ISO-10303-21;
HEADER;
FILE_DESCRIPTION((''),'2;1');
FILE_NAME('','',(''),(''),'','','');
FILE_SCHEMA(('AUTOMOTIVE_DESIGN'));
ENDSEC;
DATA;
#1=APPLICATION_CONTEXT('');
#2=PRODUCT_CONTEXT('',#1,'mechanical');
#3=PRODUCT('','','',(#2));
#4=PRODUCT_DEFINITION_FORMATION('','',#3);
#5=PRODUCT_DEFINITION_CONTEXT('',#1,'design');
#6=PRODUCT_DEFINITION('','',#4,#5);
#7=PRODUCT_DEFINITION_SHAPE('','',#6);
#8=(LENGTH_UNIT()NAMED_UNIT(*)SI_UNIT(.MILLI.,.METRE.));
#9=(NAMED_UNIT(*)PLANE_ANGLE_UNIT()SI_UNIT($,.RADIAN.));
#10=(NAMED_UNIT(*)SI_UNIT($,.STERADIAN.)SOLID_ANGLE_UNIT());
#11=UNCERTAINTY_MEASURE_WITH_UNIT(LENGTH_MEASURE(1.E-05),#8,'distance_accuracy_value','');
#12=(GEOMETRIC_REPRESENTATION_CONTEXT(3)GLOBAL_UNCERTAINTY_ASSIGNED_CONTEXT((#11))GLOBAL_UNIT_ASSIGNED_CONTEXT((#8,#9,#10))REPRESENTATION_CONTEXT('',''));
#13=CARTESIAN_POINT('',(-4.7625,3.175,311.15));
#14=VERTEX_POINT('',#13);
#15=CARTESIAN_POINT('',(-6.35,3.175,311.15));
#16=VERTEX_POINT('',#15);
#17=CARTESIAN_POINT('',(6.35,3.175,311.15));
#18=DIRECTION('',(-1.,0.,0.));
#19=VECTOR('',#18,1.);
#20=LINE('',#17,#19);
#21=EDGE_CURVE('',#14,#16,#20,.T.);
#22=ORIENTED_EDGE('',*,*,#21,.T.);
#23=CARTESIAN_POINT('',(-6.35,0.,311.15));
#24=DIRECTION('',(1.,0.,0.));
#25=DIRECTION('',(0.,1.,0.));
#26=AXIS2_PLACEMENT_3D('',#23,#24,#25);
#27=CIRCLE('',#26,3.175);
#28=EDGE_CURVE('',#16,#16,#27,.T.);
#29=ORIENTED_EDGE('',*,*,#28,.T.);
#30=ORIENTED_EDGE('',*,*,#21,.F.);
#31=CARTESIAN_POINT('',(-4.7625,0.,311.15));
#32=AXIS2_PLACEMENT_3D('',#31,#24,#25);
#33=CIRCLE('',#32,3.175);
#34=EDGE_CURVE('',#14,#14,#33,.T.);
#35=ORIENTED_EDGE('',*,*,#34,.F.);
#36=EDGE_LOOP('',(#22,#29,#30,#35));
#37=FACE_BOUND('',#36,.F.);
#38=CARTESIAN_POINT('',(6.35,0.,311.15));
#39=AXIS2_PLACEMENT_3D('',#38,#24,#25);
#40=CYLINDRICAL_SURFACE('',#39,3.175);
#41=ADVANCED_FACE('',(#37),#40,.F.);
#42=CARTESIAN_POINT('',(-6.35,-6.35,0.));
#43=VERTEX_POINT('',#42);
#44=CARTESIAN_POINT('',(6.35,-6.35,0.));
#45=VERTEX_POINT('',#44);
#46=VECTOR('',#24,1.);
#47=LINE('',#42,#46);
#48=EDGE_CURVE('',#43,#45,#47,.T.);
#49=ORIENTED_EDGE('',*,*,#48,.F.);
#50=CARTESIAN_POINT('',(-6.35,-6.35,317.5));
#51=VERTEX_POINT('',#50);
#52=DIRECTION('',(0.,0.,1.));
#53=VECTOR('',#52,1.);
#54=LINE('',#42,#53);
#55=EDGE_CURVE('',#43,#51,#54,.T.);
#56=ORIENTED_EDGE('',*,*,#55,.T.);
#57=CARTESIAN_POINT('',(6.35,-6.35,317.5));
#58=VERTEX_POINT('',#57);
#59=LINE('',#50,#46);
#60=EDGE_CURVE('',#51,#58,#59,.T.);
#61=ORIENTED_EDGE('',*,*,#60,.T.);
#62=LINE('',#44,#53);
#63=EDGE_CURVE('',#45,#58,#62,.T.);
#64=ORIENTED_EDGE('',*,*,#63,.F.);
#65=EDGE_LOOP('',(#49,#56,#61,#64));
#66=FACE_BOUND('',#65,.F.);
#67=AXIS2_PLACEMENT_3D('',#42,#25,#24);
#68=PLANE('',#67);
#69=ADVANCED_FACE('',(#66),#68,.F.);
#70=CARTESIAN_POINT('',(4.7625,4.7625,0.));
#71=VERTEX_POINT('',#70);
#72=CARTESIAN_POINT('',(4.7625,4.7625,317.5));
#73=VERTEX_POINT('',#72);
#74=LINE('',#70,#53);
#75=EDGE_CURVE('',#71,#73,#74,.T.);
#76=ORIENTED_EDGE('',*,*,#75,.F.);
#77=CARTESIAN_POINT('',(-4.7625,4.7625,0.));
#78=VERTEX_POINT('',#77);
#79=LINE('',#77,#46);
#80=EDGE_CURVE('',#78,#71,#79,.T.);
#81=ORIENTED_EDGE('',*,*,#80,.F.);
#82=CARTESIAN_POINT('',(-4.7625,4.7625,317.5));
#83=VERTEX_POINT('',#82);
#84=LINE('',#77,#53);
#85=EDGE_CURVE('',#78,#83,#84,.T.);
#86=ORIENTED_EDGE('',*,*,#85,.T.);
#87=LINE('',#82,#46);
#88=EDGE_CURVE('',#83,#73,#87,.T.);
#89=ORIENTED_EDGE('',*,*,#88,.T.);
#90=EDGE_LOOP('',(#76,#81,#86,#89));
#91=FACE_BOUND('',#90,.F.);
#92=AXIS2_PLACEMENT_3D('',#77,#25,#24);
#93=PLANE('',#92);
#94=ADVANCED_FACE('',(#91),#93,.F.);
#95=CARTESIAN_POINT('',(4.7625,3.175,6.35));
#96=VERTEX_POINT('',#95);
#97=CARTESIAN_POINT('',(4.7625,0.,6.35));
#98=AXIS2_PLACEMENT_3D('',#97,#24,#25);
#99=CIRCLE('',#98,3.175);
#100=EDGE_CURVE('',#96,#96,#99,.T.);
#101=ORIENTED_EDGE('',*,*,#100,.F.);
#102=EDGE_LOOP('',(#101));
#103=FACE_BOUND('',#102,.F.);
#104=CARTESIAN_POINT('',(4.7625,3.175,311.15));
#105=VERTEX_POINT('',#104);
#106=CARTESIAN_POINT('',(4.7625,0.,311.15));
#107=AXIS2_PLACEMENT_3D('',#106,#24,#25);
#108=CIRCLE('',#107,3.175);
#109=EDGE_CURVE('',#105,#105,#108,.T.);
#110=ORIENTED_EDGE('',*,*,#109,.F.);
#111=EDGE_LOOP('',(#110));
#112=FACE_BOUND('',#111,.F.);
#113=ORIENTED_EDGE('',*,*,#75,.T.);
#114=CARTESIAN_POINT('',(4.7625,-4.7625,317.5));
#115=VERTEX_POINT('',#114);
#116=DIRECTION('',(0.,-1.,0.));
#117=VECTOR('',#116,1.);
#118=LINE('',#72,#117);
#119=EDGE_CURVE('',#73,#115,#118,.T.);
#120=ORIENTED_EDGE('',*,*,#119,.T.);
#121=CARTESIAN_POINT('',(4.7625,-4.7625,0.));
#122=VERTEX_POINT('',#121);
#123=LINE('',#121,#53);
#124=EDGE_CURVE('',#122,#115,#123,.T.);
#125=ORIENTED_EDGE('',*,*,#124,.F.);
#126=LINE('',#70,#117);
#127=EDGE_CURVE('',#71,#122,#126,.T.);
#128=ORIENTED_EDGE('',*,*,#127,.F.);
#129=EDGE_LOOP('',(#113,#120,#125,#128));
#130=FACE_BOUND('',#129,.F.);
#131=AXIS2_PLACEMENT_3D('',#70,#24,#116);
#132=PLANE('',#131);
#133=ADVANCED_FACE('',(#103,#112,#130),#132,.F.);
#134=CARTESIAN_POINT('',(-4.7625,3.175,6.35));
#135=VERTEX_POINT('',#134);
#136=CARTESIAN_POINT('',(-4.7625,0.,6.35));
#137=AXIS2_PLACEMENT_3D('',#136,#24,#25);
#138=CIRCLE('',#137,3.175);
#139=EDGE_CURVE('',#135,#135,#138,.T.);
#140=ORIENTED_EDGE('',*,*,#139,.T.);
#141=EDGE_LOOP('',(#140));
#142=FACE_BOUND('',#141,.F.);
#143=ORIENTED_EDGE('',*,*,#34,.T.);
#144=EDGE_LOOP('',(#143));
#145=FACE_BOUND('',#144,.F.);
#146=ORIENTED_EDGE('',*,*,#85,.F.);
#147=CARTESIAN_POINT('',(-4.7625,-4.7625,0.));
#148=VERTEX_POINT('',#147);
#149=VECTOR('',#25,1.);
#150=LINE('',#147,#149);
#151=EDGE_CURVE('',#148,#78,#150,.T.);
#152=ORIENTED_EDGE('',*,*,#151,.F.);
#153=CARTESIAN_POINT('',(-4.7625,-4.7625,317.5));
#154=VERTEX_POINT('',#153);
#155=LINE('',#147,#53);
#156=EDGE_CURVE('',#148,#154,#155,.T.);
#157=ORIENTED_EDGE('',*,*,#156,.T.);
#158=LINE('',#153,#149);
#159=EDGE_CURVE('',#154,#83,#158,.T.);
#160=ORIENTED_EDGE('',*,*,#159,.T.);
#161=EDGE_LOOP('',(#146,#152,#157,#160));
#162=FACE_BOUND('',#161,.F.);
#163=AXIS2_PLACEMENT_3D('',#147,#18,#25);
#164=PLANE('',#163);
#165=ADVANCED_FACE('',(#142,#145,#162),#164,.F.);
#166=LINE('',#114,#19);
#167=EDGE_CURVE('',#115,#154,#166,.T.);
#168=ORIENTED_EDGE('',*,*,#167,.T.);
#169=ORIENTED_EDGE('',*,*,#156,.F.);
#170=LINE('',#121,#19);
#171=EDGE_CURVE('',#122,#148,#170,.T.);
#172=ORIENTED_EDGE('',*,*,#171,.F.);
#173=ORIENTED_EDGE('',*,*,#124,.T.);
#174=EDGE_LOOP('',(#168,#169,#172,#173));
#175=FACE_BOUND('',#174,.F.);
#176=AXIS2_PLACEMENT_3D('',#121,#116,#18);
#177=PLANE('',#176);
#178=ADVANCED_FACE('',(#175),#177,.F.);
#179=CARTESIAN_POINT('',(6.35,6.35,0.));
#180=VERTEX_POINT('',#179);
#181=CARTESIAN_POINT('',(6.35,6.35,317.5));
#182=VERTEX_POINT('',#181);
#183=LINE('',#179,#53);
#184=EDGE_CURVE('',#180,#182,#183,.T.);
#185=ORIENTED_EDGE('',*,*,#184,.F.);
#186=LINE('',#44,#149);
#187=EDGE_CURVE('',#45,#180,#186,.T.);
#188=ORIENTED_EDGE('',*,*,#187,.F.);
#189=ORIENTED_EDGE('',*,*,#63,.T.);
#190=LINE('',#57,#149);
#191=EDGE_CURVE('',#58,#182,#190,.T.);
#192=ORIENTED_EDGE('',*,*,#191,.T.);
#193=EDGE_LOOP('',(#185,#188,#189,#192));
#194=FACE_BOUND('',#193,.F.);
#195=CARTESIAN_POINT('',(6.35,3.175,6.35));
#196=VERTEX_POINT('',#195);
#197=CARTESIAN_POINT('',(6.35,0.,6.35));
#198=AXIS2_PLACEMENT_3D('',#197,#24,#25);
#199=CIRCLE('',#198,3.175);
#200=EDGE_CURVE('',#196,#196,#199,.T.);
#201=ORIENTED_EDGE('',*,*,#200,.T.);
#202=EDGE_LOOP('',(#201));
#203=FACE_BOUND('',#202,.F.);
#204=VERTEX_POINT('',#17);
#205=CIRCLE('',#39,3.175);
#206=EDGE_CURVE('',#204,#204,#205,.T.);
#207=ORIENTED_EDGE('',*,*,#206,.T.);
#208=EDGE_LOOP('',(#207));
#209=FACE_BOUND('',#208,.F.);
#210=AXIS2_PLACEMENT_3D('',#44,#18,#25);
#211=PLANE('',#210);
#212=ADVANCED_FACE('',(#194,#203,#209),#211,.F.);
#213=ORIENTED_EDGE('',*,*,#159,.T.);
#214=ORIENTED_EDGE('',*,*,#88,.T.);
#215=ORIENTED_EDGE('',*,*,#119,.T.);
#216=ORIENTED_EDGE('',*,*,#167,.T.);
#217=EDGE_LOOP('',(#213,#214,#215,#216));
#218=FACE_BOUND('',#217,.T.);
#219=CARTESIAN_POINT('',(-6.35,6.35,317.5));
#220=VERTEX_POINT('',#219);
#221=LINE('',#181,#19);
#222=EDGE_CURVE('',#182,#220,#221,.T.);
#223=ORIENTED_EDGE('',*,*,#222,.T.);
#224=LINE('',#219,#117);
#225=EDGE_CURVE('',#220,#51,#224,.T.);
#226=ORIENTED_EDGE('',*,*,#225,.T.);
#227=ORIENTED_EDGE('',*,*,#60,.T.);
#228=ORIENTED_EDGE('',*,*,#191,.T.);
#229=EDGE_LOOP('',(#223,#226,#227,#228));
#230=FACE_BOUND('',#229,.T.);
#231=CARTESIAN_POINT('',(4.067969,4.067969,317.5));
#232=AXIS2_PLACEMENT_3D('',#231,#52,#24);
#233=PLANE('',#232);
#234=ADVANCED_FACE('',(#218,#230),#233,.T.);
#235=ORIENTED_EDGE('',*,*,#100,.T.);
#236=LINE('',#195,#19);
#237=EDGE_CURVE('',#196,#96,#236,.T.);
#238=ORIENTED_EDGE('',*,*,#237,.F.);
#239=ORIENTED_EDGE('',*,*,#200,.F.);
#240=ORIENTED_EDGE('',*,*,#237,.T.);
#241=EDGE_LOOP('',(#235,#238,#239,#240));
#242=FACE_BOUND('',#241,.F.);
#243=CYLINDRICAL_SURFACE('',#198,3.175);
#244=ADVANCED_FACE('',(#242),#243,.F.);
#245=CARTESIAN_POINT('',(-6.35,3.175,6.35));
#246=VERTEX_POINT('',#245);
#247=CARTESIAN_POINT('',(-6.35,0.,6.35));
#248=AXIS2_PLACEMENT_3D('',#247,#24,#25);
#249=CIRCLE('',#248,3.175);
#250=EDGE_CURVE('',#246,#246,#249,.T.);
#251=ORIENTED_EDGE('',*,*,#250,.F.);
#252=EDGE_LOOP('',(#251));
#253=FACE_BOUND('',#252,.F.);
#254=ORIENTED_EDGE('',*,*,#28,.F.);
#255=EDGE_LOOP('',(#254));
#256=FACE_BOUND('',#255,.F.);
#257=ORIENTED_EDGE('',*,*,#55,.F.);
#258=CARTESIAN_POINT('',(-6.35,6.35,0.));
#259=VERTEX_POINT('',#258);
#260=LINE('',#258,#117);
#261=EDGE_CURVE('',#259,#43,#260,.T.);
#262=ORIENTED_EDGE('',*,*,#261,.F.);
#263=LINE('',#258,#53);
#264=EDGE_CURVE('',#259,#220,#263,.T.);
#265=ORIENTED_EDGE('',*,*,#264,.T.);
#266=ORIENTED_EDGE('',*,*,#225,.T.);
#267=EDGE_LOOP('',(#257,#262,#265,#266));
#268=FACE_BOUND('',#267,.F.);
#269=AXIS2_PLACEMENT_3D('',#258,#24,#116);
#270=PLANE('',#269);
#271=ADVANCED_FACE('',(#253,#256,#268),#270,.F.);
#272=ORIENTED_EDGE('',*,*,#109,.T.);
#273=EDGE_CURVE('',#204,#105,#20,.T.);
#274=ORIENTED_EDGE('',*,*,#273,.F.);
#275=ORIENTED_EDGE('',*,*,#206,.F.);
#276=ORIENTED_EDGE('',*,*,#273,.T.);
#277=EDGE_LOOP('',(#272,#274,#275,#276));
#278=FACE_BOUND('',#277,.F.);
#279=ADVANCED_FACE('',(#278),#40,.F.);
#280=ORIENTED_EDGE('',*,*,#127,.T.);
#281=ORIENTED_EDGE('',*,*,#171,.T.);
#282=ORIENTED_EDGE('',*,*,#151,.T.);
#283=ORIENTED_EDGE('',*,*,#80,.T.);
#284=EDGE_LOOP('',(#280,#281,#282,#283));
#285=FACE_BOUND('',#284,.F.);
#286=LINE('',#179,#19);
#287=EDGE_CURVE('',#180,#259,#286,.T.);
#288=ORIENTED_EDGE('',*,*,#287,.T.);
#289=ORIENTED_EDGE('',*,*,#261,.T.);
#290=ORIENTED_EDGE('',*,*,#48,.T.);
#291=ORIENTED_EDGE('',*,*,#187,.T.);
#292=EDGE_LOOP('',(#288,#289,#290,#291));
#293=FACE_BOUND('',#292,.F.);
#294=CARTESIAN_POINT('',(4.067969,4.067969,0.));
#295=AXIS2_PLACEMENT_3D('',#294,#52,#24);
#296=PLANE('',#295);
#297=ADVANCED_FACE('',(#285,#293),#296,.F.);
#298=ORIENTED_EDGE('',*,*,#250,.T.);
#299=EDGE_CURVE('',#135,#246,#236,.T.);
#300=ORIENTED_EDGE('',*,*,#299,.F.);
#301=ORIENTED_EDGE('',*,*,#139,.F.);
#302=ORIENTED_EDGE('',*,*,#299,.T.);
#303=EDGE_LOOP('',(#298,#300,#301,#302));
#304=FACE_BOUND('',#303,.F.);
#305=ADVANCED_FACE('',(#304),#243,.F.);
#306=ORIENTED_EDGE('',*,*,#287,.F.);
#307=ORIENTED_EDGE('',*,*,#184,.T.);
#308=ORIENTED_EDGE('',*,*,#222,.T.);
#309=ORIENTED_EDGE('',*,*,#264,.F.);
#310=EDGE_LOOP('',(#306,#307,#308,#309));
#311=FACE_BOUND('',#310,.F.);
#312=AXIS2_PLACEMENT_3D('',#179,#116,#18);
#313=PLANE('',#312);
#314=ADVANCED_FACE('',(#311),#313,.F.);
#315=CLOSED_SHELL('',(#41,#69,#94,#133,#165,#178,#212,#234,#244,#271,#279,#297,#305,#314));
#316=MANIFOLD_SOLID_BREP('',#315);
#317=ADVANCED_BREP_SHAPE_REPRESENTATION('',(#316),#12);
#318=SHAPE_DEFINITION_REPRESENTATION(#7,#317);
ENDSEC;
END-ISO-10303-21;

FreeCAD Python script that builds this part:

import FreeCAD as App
import Part
import Sketcher
from FreeCAD import Vector
Q = App.Units.Quantity

doc = App.newDocument("Part")
body = doc.addObject("PartDesign::Body", "Body")

# Sketch on XY plane
sketch1 = body.newObject("Sketcher::SketchObject", "Sketch")
sketch1.AttachmentSupport = (doc.getObject("XY_Plane"), [""])
sketch1.MapMode = "FlatFace"
sketch1.addGeometry(Part.LineSegment(Vector(6, 6, 0), Vector(-6, 6, 0)), False)
sketch1.addGeometry(Part.LineSegment(Vector(-6, 6, 0), Vector(-6, -6, 0)), False)
sketch1.addGeometry(Part.LineSegment(Vector(-6, -6, 0), Vector(6, -6, 0)), False)
sketch1.addGeometry(Part.LineSegment(Vector(6, -6, 0), Vector(6, 6, 0)), False)
sketch1.addGeometry(Part.LineSegment(Vector(5, 5, 0), Vector(5, -5, 0)), False)
sketch1.addGeometry(Part.LineSegment(Vector(5, -5, 0), Vector(-5, -5, 0)), False)
sketch1.addGeometry(Part.LineSegment(Vector(-5, -5, 0), Vector(-5, 5, 0)), False)
sketch1.addGeometry(Part.LineSegment(Vector(-5, 5, 0), Vector(5, 5, 0)), False)
sketch1.addConstraint(Sketcher.Constraint("Coincident", 0, 2, 1, 1))
sketch1.addConstraint(Sketcher.Constraint("Coincident", 1, 2, 2, 1))
sketch1.addConstraint(Sketcher.Constraint("Coincident", 2, 2, 3, 1))
sketch1.addConstraint(Sketcher.Constraint("Coincident", 3, 2, 0, 1))
sketch1.addConstraint(Sketcher.Constraint("Coincident", 4, 2, 5, 1))
sketch1.addConstraint(Sketcher.Constraint("Coincident", 5, 2, 6, 1))
sketch1.addConstraint(Sketcher.Constraint("Coincident", 6, 2, 7, 1))
sketch1.addConstraint(Sketcher.Constraint("Coincident", 7, 2, 4, 1))
sketch1.addConstraint(Sketcher.Constraint("Horizontal", 0))
sketch1.addConstraint(Sketcher.Constraint("Vertical", 1))
sketch1.addConstraint(Sketcher.Constraint("Horizontal", 2))
sketch1.addConstraint(Sketcher.Constraint("Vertical", 3))
sketch1.addConstraint(Sketcher.Constraint("Vertical", 4))
sketch1.addConstraint(Sketcher.Constraint("Horizontal", 5))
sketch1.addConstraint(Sketcher.Constraint("Vertical", 6))
sketch1.addConstraint(Sketcher.Constraint("Horizontal", 7))
sketch1.addConstraint(Sketcher.Constraint("Symmetric", 0, 2, 2, 2, -1, 1))
sketch1.addConstraint(Sketcher.Constraint("Symmetric", 4, 2, 6, 2, -1, 1))
sketch1.addConstraint(Sketcher.Constraint("Equal", 2, 1))
sketch1.addConstraint(Sketcher.Constraint("Equal", 7, 4))
sketch1.addConstraint(Sketcher.Constraint("DistanceX", 0, 2, 0, 1, Q("0.5 in")))
sketch1.addConstraint(Sketcher.Constraint("DistanceX", 5, 2, 5, 1, Q("0.375 in")))
pad1 = body.newObject("PartDesign::Pad", "Pad")
pad1.Profile = sketch1
pad1.Length = Q("12.5 in")

# Sketch on YZ plane
sketch2 = body.newObject("Sketcher::SketchObject", "Sketch001")
sketch2.AttachmentSupport = (doc.getObject("YZ_Plane"), [""])
sketch2.MapMode = "FlatFace"
sketch2.AttachmentOffset = App.Placement(Vector(0, 0, 0.25 * 25.4), App.Rotation())
sketch2.addGeometry(Part.Circle(Vector(0, 6.3, 0), Vector(0, 0, 1), 3.2), False)
sketch2.addGeometry(Part.Circle(Vector(0, 311.1, 0), Vector(0, 0, 1), 3.2), False)
sketch2.addConstraint(Sketcher.Constraint("Equal", 0, 1))
sketch2.addConstraint(Sketcher.Constraint("PointOnObject", 0, 3, -2))
sketch2.addConstraint(Sketcher.Constraint("PointOnObject", 1, 3, -2))
sketch2.addConstraint(Sketcher.Constraint("Diameter", 0, Q("0.25 in")))
sketch2.addConstraint(Sketcher.Constraint("DistanceY", 0, 3, 1, 3, Q("12 in")))
sketch2.addConstraint(Sketcher.Constraint("DistanceY", -1, 1, 0, 3, Q("0.25 in")))
pocket1 = body.newObject("PartDesign::Pocket", "Pocket")
pocket1.Profile = sketch2
pocket1.Type = "ThroughAll"

doc.recompute()
